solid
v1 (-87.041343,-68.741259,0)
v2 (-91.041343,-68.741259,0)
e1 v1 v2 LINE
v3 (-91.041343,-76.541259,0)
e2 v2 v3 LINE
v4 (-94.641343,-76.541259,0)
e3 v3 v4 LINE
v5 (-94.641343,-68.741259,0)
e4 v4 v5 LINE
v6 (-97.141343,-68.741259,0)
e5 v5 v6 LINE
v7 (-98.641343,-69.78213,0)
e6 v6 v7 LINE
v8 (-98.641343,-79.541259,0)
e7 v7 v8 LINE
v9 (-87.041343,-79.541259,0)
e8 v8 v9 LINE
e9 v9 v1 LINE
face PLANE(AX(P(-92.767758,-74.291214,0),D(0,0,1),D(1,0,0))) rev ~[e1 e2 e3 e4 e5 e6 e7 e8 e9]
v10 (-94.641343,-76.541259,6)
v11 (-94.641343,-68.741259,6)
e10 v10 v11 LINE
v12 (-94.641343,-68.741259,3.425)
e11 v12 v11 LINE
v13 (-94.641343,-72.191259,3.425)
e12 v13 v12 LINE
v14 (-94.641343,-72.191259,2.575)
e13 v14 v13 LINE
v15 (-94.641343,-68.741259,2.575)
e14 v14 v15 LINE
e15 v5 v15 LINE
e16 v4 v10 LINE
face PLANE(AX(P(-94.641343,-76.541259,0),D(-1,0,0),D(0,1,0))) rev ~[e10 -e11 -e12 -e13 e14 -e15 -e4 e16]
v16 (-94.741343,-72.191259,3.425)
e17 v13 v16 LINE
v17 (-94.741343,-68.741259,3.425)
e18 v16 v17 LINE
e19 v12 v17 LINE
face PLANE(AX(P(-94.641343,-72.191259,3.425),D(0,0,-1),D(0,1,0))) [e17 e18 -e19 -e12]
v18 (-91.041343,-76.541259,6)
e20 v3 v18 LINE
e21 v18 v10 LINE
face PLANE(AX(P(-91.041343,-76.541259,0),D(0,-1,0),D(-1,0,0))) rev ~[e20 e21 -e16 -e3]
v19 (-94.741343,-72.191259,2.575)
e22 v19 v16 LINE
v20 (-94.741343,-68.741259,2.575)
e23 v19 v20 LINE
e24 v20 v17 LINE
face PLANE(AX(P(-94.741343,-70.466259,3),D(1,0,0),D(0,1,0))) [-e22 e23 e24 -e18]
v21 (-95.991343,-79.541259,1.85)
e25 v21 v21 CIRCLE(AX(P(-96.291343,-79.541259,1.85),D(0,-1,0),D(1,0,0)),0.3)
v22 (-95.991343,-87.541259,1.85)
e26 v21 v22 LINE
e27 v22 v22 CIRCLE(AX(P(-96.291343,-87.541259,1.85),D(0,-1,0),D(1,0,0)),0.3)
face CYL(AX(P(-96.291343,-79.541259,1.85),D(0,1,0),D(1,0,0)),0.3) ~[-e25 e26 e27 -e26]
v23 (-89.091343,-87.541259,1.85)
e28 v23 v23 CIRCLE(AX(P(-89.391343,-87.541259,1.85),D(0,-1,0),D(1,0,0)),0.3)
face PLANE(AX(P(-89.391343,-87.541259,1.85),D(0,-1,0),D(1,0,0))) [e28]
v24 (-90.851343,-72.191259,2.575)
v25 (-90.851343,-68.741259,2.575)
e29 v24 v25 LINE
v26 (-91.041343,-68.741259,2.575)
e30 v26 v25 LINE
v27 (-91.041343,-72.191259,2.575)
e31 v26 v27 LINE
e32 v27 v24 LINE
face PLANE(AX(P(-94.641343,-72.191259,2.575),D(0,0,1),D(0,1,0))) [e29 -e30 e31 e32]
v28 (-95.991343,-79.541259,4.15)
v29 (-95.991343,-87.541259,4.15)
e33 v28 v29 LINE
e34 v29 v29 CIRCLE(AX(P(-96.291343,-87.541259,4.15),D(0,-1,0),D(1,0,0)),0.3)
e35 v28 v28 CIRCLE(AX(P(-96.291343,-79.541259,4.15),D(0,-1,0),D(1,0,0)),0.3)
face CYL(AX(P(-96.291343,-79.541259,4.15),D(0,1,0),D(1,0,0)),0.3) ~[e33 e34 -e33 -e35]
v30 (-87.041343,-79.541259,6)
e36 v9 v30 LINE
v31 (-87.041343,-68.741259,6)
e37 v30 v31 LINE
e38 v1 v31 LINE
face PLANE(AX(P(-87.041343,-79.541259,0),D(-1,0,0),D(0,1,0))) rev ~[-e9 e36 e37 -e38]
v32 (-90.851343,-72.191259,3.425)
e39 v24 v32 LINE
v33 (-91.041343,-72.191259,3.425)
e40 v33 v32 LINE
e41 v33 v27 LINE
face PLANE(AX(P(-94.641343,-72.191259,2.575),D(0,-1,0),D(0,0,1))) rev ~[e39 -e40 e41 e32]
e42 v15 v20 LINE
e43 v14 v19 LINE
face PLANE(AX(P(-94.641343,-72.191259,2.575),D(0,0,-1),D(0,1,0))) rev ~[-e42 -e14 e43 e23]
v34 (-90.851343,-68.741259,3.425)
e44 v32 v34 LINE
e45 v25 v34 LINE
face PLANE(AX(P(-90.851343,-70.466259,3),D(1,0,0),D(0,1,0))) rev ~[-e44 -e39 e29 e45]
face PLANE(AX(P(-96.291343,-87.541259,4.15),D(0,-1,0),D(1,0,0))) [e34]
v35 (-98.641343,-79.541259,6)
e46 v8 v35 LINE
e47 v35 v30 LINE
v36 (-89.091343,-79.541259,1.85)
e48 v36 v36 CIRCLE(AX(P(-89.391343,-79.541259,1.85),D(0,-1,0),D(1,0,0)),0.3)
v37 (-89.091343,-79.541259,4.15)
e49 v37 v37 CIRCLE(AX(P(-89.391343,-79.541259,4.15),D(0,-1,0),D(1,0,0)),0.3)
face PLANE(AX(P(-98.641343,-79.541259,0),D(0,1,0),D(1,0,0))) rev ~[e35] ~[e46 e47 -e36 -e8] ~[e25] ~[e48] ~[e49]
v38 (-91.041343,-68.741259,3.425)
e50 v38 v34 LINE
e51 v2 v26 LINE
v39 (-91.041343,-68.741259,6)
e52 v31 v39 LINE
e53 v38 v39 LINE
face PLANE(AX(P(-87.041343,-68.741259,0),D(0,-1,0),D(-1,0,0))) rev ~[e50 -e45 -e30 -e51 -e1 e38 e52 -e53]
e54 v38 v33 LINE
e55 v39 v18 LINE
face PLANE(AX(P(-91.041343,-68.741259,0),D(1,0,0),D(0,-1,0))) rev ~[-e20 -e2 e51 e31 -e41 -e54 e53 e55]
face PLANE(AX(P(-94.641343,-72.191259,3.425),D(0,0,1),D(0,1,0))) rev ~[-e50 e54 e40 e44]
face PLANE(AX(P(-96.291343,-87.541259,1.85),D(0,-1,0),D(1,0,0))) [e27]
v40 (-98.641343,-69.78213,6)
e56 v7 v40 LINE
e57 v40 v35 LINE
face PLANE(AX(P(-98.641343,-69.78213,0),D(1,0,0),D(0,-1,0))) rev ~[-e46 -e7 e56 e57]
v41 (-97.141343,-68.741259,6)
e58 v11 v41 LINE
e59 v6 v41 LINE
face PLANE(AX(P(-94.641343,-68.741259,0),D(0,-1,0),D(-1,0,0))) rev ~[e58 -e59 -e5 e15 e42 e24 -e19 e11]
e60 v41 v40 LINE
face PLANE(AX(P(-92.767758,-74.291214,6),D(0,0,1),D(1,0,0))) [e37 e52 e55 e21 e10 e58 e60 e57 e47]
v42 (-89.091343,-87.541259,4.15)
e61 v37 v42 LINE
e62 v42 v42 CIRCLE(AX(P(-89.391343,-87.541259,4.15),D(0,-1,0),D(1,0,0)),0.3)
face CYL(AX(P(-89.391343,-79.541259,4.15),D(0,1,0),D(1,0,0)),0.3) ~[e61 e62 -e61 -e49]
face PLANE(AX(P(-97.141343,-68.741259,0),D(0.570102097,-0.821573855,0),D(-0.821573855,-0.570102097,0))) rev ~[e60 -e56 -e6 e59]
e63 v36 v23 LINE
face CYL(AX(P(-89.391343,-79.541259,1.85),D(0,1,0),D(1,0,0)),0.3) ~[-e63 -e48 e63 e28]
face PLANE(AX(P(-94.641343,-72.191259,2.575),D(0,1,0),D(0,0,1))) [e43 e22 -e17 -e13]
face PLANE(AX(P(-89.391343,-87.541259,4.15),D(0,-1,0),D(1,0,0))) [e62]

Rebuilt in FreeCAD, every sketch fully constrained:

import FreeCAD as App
import Part
import Sketcher
Q = App.Units.Quantity

doc = App.newDocument("Part")
body = doc.addObject("PartDesign::Body", "Body")

# Sketch on XY plane
sketch1 = body.newObject("Sketcher::SketchObject", "Sketch")
sketch1.AttachmentSupport = (doc.getObject("XY_Plane"), [""])
sketch1.MapMode = "FlatFace"
sketch1.addGeometry([
    Part.LineSegment(App.Vector(-98.6, -69.8, 0), App.Vector(-98.6, -79.5, 0)),  # 0
    Part.LineSegment(App.Vector(-98.6, -79.5, 0), App.Vector(-87, -79.5, 0)),  # 1
    Part.LineSegment(App.Vector(-87, -79.5, 0), App.Vector(-87, -68.7, 0)),  # 2
    Part.LineSegment(App.Vector(-87, -68.7, 0), App.Vector(-91, -68.7, 0)),  # 3
    Part.LineSegment(App.Vector(-91, -68.7, 0), App.Vector(-91, -76.5, 0)),  # 4
    Part.LineSegment(App.Vector(-91, -76.5, 0), App.Vector(-94.6, -76.5, 0)),  # 5
    Part.LineSegment(App.Vector(-94.6, -76.5, 0), App.Vector(-94.6, -68.7, 0)),  # 6
    Part.LineSegment(App.Vector(-94.6, -68.7, 0), App.Vector(-97.1, -68.7, 0)),  # 7
    Part.LineSegment(App.Vector(-97.1, -68.7, 0), App.Vector(-98.6, -69.8, 0)),  # 8
], False)
sketch1.addConstraint([
    Sketcher.Constraint("Coincident", 0, 2, 1, 1),
    Sketcher.Constraint("Coincident", 1, 2, 2, 1),
    Sketcher.Constraint("Coincident", 2, 2, 3, 1),
    Sketcher.Constraint("Coincident", 3, 2, 4, 1),
    Sketcher.Constraint("Coincident", 4, 2, 5, 1),
    Sketcher.Constraint("Coincident", 5, 2, 6, 1),
    Sketcher.Constraint("Coincident", 6, 2, 7, 1),
    Sketcher.Constraint("Coincident", 7, 2, 8, 1),
    Sketcher.Constraint("Coincident", 8, 2, 0, 1),
    Sketcher.Constraint("Vertical", 0),
    Sketcher.Constraint("Horizontal", 1),
    Sketcher.Constraint("Vertical", 2),
    Sketcher.Constraint("Horizontal", 3),
    Sketcher.Constraint("Vertical", 4),
    Sketcher.Constraint("Horizontal", 5),
    Sketcher.Constraint("Vertical", 6),
    Sketcher.Constraint("Horizontal", 7),
    Sketcher.Constraint("Horizontal", 3, 2, 6, 2),
    Sketcher.Constraint("DistanceX", 3, 2, 3, 1, Q("4 mm")),
    Sketcher.Constraint("DistanceX", 1, 1, 1, 2, Q("11.6 mm")),
    Sketcher.Constraint("DistanceX", 5, 2, 5, 1, Q("3.6 mm")),
    Sketcher.Constraint("DistanceX", 7, 2, 7, 1, Q("2.5 mm")),
    Sketcher.Constraint("DistanceY", 2, 1, 2, 2, Q("10.8 mm")),
    Sketcher.Constraint("DistanceY", 4, 2, 4, 1, Q("7.8 mm")),
    Sketcher.Constraint("DistanceY", 0, 2, 0, 1, Q("9.759128 mm")),
    Sketcher.Constraint("DistanceY", 0, 2, -1, 1, Q("79.541259 mm")),
    Sketcher.Constraint("DistanceX", 0, 2, -1, 1, Q("98.641343 mm")),
])
pad1 = body.newObject("PartDesign::Pad", "Pad")
pad1.Profile = sketch1
pad1.Length = 6

# Sketch on YZ plane
sketch2 = body.newObject("Sketcher::SketchObject", "Sketch001")
sketch2.AttachmentSupport = (doc.getObject("YZ_Plane"), [""])
sketch2.MapMode = "FlatFace"
sketch2.AttachmentOffset = App.Placement(App.Vector(0, 0, -94.641343), App.Rotation())
sketch2.addGeometry([
    Part.LineSegment(App.Vector(-72.2, 3.4, 0), App.Vector(-72.2, 2.6, 0)),
    Part.LineSegment(App.Vector(-72.2, 2.6, 0), App.Vector(-68.7, 2.6, 0)),
    Part.LineSegment(App.Vector(-68.7, 2.6, 0), App.Vector(-68.7, 3.4, 0)),
    Part.LineSegment(App.Vector(-68.7, 3.4, 0), App.Vector(-72.2, 3.4, 0)),
], False)
sketch2.addConstraint([
    Sketcher.Constraint("Coincident", 0, 2, 1, 1),
    Sketcher.Constraint("Coincident", 1, 2, 2, 1),
    Sketcher.Constraint("Coincident", 2, 2, 3, 1),
    Sketcher.Constraint("Coincident", 3, 2, 0, 1),
    Sketcher.Constraint("Vertical", 0),
    Sketcher.Constraint("Horizontal", 1),
    Sketcher.Constraint("Vertical", 2),
    Sketcher.Constraint("Horizontal", 3),
    Sketcher.Constraint("DistanceX", 1, 1, 1, 2, Q("3.45 mm")),
    Sketcher.Constraint("DistanceY", 0, 2, 0, 1, Q("0.85 mm")),
    Sketcher.Constraint("DistanceY", -1, 1, 0, 2, Q("2.575 mm")),
    Sketcher.Constraint("DistanceX", 0, 2, -1, 1, Q("72.191259 mm")),
])
pocket1 = body.newObject("PartDesign::Pocket", "Pocket")
pocket1.Profile = sketch2
pocket1.Type = "TwoLengths"
pocket1.Length = 0.1
pocket1.Length2 = 3.79

# Sketch on XZ plane
sketch3 = body.newObject("Sketcher::SketchObject", "Sketch002")
sketch3.AttachmentSupport = (doc.getObject("XZ_Plane"), [""])
sketch3.MapMode = "FlatFace"
sketch3.AttachmentOffset = App.Placement(App.Vector(0, 0, 79.541259), App.Rotation())
sketch3.addGeometry([
    Part.Circle(App.Vector(-96.29, 4.15, 0), App.Vector(0, 0, 1), 0.3),
    Part.Circle(App.Vector(-96.29, 1.85, 0), App.Vector(0, 0, 1), 0.3),
    Part.Circle(App.Vector(-89.39, 4.15, 0), App.Vector(0, 0, 1), 0.3),
    Part.Circle(App.Vector(-89.39, 1.85, 0), App.Vector(0, 0, 1), 0.3),
], False)
sketch3.addConstraint([
    Sketcher.Constraint("Equal", 0, 1),
    Sketcher.Constraint("Equal", 1, 2),
    Sketcher.Constraint("Equal", 2, 3),
    Sketcher.Constraint("Horizontal", 0, 3, 2, 3),
    Sketcher.Constraint("Horizontal", 1, 3, 3, 3),
    Sketcher.Constraint("Vertical", 0, 3, 1, 3),
    Sketcher.Constraint("Vertical", 2, 3, 3, 3),
    Sketcher.Constraint("Diameter", 0, Q("0.6 mm")),
    Sketcher.Constraint("DistanceY", 1, 3, 0, 3, Q("2.3 mm")),
    Sketcher.Constraint("DistanceX", 0, 3, 2, 3, Q("6.9 mm")),
    Sketcher.Constraint("DistanceY", -1, 1, 0, 3, Q("4.15 mm")),
    Sketcher.Constraint("DistanceX", 0, 3, -1, 1, Q("96.291343 mm")),
])
pad2 = body.newObject("PartDesign::Pad", "Pad001")
pad2.Profile = sketch3
pad2.Length = 8

doc.recompute()
